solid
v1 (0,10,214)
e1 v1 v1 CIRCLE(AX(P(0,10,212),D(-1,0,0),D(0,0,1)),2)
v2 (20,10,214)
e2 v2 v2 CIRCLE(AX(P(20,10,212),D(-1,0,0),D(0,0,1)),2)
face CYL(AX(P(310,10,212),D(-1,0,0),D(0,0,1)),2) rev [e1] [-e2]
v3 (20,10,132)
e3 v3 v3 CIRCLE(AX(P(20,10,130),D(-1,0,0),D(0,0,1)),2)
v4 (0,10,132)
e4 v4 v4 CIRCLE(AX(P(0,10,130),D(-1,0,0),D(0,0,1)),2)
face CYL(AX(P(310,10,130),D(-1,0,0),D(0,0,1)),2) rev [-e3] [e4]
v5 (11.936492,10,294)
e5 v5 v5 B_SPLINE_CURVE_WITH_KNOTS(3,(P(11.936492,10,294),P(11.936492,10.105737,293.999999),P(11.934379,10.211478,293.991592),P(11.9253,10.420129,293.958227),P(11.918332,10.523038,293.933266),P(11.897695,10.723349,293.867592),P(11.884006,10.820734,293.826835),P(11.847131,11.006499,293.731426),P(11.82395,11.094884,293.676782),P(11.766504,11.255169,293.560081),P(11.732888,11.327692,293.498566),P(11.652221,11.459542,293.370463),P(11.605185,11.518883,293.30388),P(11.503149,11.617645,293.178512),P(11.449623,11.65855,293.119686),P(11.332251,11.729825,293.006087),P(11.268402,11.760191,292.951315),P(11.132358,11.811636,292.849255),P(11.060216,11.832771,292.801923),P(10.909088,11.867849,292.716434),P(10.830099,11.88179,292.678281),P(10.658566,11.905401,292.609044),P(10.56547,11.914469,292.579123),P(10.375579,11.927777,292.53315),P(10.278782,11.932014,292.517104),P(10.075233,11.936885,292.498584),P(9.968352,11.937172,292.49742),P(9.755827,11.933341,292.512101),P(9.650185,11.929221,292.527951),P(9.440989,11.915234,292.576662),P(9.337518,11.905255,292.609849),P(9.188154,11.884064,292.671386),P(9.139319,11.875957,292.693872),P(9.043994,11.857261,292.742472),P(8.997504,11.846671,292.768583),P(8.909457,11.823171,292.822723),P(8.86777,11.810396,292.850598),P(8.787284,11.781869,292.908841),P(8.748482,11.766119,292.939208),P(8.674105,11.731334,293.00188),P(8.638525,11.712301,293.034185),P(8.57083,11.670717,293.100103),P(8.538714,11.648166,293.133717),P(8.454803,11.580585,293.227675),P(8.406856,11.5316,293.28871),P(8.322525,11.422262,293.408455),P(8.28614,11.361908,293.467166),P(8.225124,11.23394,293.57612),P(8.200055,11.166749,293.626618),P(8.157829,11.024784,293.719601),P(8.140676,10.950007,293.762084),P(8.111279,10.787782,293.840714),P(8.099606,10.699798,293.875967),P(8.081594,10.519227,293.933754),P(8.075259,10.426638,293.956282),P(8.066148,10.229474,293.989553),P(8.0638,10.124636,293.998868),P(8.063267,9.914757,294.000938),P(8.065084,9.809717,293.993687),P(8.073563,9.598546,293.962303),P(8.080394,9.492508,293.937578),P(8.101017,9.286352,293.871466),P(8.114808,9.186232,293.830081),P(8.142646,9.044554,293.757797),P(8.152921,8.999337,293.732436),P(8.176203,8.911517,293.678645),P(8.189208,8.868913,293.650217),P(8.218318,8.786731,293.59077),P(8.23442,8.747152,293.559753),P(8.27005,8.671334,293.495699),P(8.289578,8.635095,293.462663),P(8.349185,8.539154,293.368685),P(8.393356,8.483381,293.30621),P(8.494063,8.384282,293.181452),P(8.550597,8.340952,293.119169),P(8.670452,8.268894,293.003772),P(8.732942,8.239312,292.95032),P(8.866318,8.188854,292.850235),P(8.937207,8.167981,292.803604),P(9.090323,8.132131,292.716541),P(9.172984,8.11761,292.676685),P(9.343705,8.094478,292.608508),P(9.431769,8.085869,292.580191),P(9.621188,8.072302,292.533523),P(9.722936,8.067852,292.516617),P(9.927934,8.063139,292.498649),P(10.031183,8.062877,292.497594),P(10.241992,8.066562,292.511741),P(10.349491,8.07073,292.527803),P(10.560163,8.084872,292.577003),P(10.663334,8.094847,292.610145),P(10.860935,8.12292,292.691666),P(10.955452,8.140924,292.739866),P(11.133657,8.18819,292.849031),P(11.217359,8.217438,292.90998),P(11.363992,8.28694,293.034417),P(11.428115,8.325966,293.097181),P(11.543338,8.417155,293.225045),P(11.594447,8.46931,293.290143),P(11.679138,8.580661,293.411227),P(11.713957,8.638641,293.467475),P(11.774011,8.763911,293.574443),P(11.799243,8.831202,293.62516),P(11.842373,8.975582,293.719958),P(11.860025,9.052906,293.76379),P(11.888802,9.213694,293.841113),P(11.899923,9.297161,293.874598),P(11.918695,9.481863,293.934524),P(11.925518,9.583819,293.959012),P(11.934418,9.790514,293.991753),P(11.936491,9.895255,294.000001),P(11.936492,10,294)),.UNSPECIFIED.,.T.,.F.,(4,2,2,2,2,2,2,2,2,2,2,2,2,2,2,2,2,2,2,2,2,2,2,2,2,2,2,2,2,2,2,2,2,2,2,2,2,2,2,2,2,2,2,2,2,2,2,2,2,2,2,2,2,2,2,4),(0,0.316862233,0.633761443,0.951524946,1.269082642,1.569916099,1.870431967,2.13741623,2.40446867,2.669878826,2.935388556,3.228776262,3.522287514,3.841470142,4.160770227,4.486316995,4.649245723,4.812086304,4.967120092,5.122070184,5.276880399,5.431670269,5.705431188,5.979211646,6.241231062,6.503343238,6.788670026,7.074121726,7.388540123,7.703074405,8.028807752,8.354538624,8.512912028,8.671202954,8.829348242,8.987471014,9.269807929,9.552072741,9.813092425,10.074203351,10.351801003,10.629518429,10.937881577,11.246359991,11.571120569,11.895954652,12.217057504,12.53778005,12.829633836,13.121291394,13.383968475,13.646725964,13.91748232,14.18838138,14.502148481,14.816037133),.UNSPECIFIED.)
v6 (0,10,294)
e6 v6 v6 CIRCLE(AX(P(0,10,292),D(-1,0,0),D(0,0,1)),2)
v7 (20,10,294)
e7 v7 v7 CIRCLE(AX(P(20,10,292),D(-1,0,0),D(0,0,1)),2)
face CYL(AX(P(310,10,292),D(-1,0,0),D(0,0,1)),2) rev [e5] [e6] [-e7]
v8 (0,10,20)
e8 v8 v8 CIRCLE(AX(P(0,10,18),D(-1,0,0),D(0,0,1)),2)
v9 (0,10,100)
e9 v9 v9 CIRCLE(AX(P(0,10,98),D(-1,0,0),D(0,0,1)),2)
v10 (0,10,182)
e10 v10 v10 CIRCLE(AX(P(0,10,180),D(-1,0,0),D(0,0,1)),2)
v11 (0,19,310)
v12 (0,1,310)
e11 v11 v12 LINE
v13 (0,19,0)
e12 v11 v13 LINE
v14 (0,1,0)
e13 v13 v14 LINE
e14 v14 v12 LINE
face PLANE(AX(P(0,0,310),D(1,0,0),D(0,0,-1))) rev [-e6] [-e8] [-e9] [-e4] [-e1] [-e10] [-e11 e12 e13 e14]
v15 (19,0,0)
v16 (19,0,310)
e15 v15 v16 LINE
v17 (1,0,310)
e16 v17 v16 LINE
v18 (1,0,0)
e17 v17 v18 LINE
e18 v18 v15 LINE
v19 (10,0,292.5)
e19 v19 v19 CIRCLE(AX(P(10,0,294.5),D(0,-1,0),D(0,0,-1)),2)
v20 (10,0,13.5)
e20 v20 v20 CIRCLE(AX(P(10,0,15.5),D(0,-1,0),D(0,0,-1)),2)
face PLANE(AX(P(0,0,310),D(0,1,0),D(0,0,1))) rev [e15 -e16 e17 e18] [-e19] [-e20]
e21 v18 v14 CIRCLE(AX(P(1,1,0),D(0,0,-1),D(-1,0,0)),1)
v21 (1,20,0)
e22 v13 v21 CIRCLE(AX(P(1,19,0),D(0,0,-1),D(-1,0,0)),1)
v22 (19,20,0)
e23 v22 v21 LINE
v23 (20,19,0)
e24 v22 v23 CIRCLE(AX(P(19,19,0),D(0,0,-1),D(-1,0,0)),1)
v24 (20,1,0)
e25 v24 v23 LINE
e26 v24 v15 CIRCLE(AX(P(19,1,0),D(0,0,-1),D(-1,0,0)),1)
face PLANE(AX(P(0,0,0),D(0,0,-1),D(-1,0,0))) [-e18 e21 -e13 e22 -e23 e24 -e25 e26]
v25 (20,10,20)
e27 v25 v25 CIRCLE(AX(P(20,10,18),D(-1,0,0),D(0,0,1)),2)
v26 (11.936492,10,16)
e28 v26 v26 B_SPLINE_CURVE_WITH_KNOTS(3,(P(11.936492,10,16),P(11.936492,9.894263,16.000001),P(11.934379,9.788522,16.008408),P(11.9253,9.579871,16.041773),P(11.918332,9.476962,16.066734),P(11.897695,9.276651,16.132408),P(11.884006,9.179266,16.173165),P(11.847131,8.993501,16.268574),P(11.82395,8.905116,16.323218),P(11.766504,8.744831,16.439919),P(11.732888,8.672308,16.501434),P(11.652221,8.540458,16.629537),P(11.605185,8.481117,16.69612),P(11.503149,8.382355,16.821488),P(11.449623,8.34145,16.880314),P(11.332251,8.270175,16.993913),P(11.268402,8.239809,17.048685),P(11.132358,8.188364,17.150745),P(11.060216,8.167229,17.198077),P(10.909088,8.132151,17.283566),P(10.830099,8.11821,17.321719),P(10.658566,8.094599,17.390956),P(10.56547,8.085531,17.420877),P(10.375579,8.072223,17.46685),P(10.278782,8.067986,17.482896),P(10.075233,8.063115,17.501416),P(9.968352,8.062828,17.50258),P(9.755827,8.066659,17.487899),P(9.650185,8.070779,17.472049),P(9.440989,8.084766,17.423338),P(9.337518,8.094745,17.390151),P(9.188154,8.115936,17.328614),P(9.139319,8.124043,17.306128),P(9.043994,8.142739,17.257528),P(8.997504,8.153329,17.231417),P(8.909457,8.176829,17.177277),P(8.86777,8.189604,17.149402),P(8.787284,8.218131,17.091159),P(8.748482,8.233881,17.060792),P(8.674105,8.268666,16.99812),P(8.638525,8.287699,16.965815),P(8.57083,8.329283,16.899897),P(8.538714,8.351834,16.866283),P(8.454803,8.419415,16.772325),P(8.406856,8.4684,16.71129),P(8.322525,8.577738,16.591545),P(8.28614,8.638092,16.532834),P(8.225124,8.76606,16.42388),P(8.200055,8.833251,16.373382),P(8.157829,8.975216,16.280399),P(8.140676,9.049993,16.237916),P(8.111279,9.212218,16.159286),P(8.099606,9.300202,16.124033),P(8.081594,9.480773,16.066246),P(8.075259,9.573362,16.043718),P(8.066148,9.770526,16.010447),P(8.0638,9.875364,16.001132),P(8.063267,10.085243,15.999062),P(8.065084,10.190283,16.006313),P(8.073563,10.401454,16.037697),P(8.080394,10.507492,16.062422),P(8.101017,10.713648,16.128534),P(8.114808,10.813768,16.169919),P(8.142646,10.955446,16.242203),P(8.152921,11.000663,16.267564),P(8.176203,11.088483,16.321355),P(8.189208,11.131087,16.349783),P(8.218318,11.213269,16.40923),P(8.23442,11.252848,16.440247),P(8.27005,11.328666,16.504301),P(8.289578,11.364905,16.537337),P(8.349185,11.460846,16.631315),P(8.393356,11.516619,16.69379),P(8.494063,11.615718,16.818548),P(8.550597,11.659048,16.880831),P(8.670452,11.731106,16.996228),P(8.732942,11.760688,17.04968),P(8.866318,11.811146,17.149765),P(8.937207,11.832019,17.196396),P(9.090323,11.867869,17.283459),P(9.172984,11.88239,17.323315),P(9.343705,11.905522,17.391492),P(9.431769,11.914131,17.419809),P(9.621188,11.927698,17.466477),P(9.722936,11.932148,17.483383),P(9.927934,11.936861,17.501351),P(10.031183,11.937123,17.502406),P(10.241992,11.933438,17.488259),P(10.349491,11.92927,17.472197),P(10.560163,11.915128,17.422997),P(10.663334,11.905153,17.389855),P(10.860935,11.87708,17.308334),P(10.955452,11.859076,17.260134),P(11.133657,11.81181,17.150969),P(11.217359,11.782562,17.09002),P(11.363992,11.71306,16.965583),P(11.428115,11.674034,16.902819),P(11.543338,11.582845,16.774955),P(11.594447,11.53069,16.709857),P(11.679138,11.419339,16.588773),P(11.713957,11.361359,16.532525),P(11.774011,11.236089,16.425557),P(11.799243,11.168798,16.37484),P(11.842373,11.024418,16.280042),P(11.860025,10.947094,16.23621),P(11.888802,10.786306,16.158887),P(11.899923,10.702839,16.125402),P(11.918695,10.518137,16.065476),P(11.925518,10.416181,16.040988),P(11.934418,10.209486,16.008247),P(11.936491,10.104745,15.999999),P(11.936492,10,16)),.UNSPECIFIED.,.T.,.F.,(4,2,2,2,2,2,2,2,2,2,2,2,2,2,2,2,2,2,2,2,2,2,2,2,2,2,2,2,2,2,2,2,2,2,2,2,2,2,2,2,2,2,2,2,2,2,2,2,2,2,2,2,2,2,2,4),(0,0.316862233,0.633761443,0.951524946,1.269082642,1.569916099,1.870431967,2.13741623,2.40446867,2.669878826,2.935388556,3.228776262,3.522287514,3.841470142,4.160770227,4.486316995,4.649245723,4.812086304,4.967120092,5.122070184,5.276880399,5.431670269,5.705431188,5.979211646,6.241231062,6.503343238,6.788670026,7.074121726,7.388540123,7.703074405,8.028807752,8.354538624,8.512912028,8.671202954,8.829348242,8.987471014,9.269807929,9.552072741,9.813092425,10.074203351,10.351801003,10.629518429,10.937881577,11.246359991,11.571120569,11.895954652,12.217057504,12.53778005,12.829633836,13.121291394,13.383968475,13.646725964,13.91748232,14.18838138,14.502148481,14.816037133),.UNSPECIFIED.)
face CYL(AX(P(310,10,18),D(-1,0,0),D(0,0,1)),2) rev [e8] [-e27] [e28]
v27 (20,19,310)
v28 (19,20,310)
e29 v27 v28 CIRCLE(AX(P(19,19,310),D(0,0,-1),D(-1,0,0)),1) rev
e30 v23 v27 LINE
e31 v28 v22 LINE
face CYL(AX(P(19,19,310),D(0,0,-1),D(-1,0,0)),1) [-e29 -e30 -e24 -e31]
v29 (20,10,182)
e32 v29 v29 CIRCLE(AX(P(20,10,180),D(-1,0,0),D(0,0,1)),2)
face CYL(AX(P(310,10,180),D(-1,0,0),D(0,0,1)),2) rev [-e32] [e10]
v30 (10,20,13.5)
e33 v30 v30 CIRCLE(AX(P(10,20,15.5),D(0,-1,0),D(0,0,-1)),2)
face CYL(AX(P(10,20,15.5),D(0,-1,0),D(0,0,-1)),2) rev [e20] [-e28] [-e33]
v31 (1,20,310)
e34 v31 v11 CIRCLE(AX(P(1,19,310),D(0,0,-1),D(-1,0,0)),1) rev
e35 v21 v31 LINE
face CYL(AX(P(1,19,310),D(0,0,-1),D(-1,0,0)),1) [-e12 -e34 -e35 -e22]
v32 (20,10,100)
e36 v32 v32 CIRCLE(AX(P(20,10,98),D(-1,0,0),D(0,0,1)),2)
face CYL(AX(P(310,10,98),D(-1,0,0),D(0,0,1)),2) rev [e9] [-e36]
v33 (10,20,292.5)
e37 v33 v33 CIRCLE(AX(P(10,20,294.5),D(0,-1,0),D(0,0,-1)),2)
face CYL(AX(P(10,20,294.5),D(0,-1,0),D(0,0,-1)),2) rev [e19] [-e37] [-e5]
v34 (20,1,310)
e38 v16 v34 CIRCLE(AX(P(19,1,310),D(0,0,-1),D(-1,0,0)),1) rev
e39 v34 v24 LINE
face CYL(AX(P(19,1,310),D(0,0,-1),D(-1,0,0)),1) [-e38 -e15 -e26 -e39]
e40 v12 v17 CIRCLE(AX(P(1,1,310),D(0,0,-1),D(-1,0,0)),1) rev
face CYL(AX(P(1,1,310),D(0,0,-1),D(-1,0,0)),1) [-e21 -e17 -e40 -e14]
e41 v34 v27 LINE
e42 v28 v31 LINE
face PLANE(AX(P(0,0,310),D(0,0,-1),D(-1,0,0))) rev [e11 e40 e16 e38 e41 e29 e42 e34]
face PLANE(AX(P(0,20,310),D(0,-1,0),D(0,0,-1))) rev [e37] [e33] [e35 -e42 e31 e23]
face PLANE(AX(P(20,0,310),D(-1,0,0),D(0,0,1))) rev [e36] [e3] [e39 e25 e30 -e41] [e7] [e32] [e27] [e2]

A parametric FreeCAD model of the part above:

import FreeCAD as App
import Part
import Sketcher

V = App.Vector
Q = App.Units.Quantity


def edges_at(feature, points):
    """Names of the edges that pass closest to the given points."""
    edges = feature.Shape.Edges
    near = lambda p: min(range(len(edges)), key=lambda i: edges[i].distToShape(Part.Vertex(*p))[0])
    return sorted({f"Edge{near(p) + 1}" for p in points})


def add_polygon(sketch, points):
    """Adds a closed chain of lines whose ends are joined by coincident constraints."""
    first, n = sketch.GeometryCount, len(points)
    for a, b in zip(points, points[1:] + points[:1]):
        sketch.addGeometry(Part.LineSegment(App.Vector(*a, 0), App.Vector(*b, 0)), False)
    for i in range(n):
        sketch.addConstraint(Sketcher.Constraint("Coincident", first + i, 2, first + (i + 1) % n, 1))

doc = App.newDocument("Part")
body = doc.addObject("PartDesign::Body", "Body")

# Sketch on XY plane
sketch1 = body.newObject("Sketcher::SketchObject", "Sketch")
sketch1.AttachmentSupport = (doc.getObject("XY_Plane"), [""])
sketch1.MapMode = "FlatFace"
add_polygon(sketch1, [(0, 20), (0, 0), (20, 0), (20, 20)])  # lines 0-3
sketch1.addConstraint(Sketcher.Constraint("Vertical", 0))
sketch1.addConstraint(Sketcher.Constraint("Horizontal", 1))
sketch1.addConstraint(Sketcher.Constraint("Vertical", 2))
sketch1.addConstraint(Sketcher.Constraint("Horizontal", 3))
sketch1.addConstraint(Sketcher.Constraint("Coincident", 0, 2, -1, 1))
sketch1.addConstraint(Sketcher.Constraint("Equal", 3, 0))
sketch1.addConstraint(Sketcher.Constraint("DistanceX", 1, 1, 1, 2, Q("20 mm")))
pad1 = body.newObject("PartDesign::Pad", "Pad")
pad1.Profile = sketch1
pad1.Length = 310
doc.recompute()

fillet = body.newObject("PartDesign::Fillet", "Fillet")
fillet.Base = (pad1, edges_at(pad1, [
    (0, 20, 155),
    (20, 20, 155),
    (20, 0, 155),
    (0, 0, 155),
]))
fillet.Radius = 1

# Sketch on YZ plane
sketch2 = body.newObject("Sketcher::SketchObject", "Sketch001")
sketch2.AttachmentSupport = (doc.getObject("YZ_Plane"), [""])
sketch2.MapMode = "FlatFace"
sketch2.addGeometry(Part.Circle(V(10, 98, 0), V(0, 0, 1), 2), False)
sketch2.addGeometry(Part.Circle(V(10, 212, 0), V(0, 0, 1), 2), False)
sketch2.addGeometry(Part.Circle(V(10, 130, 0), V(0, 0, 1), 2), False)
sketch2.addGeometry(Part.Circle(V(10, 180, 0), V(0, 0, 1), 2), False)
sketch2.addGeometry(Part.Circle(V(10, 18, 0), V(0, 0, 1), 2), False)
sketch2.addGeometry(Part.Circle(V(10, 292, 0), V(0, 0, 1), 2), False)
sketch2.addConstraint(Sketcher.Constraint("Equal", 0, 1))
sketch2.addConstraint(Sketcher.Constraint("Equal", 1, 2))
sketch2.addConstraint(Sketcher.Constraint("Equal", 2, 3))
sketch2.addConstraint(Sketcher.Constraint("Equal", 3, 4))
sketch2.addConstraint(Sketcher.Constraint("Equal", 4, 5))
sketch2.addConstraint(Sketcher.Constraint("Vertical", 0, 3, 1, 3))
sketch2.addConstraint(Sketcher.Constraint("Vertical", 1, 3, 2, 3))
sketch2.addConstraint(Sketcher.Constraint("Vertical", 2, 3, 3, 3))
sketch2.addConstraint(Sketcher.Constraint("Vertical", 3, 3, 4, 3))
sketch2.addConstraint(Sketcher.Constraint("Vertical", 4, 3, 5, 3))
sketch2.addConstraint(Sketcher.Constraint("Diameter", 0, Q("4 mm")))
sketch2.addConstraint(Sketcher.Constraint("DistanceX", -1, 1, 0, 3, Q("10 mm")))
sketch2.addConstraint(Sketcher.Constraint("DistanceY", -1, 1, 0, 3, Q("98 mm")))
sketch2.addConstraint(Sketcher.Constraint("DistanceY", -1, 1, 1, 3, Q("212 mm")))
sketch2.addConstraint(Sketcher.Constraint("DistanceY", -1, 1, 2, 3, Q("130 mm")))
sketch2.addConstraint(Sketcher.Constraint("DistanceY", -1, 1, 3, 3, Q("180 mm")))
sketch2.addConstraint(Sketcher.Constraint("DistanceY", -1, 1, 4, 3, Q("18 mm")))
sketch2.addConstraint(Sketcher.Constraint("DistanceY", -1, 1, 5, 3, Q("292 mm")))
pocket1 = body.newObject("PartDesign::Pocket", "Pocket")
pocket1.Profile = sketch2
pocket1.Length = 310
pocket1.Reversed = True

# Sketch on XZ plane
sketch3 = body.newObject("Sketcher::SketchObject", "Sketch002")
sketch3.AttachmentSupport = (doc.getObject("XZ_Plane"), [""])
sketch3.MapMode = "FlatFace"
sketch3.addGeometry(Part.Circle(V(10, 15.5, 0), V(0, 0, 1), 2), False)
sketch3.addGeometry(Part.Circle(V(10, 294.5, 0), V(0, 0, 1), 2), False)
sketch3.addConstraint(Sketcher.Constraint("Equal", 0, 1))
sketch3.addConstraint(Sketcher.Constraint("Vertical", 0, 3, 1, 3))
sketch3.addConstraint(Sketcher.Constraint("Diameter", 0, Q("4 mm")))
sketch3.addConstraint(Sketcher.Constraint("DistanceX", -1, 1, 0, 3, Q("10 mm")))
sketch3.addConstraint(Sketcher.Constraint("DistanceY", 0, 3, 1, 3, Q("279 mm")))
sketch3.addConstraint(Sketcher.Constraint("DistanceY", -1, 1, 0, 3, Q("15.5 mm")))
pocket2 = body.newObject("PartDesign::Pocket", "Pocket001")
pocket2.Profile = sketch3
pocket2.Length = 20

doc.recompute()
